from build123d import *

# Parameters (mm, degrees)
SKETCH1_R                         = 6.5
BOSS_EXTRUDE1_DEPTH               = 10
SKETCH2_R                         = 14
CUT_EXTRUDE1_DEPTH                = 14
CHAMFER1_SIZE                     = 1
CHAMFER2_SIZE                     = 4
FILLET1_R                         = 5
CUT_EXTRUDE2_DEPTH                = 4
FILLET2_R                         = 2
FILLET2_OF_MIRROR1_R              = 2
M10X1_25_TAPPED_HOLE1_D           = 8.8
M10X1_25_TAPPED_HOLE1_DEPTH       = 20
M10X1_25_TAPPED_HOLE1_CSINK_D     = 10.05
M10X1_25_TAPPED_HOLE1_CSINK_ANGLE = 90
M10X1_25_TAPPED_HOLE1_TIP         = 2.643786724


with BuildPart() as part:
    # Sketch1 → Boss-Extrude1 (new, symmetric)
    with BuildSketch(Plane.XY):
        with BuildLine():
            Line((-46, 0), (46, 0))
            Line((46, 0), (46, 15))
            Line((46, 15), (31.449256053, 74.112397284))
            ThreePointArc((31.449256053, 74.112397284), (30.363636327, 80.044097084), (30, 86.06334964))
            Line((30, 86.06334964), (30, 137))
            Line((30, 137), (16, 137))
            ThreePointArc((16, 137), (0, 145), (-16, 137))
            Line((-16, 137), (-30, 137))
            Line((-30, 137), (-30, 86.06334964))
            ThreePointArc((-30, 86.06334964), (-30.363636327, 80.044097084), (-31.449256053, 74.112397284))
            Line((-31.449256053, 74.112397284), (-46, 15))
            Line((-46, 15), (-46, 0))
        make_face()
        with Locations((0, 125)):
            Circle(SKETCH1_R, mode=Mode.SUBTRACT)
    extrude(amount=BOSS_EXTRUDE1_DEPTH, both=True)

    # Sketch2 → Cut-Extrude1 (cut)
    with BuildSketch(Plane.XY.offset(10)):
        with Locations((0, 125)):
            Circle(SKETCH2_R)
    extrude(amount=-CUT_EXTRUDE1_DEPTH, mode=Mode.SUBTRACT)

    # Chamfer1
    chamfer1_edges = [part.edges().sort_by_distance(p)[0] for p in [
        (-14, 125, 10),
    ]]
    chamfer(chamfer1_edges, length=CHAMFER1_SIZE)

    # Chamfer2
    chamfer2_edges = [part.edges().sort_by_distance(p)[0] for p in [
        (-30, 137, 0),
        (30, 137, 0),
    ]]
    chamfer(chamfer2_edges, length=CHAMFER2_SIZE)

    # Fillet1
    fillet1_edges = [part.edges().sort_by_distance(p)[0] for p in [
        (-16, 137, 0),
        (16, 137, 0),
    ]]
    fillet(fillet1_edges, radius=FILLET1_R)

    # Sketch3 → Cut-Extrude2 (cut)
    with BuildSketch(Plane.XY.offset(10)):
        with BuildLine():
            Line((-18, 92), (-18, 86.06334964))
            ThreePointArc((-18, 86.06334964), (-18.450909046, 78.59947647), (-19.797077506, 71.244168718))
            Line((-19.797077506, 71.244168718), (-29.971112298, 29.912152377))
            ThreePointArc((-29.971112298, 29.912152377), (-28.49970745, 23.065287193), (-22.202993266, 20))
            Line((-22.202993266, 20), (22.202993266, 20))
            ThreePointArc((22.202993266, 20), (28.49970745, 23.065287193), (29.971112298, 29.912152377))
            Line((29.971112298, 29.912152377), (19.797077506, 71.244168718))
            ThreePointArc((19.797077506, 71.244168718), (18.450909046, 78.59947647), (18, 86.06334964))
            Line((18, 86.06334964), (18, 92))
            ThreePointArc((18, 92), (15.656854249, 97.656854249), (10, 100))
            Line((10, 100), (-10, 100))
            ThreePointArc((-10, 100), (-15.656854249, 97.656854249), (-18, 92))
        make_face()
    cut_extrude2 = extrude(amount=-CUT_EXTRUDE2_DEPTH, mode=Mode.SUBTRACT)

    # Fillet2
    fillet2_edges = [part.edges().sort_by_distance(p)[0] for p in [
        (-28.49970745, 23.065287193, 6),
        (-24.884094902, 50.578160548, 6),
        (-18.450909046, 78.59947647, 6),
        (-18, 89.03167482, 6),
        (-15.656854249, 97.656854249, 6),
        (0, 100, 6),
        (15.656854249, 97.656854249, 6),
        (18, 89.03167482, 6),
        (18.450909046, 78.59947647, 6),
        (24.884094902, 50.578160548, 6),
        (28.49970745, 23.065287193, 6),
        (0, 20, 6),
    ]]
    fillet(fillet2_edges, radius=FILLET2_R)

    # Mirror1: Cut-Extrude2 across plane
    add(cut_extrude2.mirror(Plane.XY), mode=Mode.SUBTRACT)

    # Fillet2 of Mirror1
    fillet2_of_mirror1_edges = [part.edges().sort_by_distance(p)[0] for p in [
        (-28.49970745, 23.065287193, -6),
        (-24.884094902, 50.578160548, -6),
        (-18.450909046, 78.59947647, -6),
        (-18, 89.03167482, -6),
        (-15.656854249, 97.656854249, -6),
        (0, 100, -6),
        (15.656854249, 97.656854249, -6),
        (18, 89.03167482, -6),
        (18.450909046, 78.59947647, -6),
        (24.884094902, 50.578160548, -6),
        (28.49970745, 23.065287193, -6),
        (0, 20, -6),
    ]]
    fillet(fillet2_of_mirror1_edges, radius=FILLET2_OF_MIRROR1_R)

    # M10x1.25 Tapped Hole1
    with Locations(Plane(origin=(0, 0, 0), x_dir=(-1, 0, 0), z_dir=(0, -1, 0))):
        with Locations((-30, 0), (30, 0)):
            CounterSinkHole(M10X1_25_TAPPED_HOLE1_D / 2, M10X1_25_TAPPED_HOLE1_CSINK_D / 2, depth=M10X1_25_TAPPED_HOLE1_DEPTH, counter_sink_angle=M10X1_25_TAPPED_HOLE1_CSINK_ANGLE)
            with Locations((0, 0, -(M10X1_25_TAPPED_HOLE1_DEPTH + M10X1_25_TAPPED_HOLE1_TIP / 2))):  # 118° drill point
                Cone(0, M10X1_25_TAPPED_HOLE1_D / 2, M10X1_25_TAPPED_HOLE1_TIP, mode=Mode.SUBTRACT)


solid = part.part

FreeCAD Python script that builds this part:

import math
import FreeCAD as App
import Part
import Sketcher


def edges_at(feature, points):
    """Names of the edges that pass closest to the given points."""
    edges = feature.Shape.Edges
    near = lambda p: min(range(len(edges)), key=lambda i: edges[i].distToShape(Part.Vertex(*p))[0])
    return sorted({f"Edge{near(p) + 1}" for p in points})

doc = App.newDocument("Part")
body = doc.addObject("PartDesign::Body", "Body")

# Sketch on XY plane
sketch1 = body.newObject("Sketcher::SketchObject", "Sketch")
sketch1.AttachmentSupport = (doc.getObject("XY_Plane"), [""])
sketch1.MapMode = "FlatFace"
sketch1.addGeometry(Part.LineSegment(App.Vector(-46, 0, 0), App.Vector(46, 0, 0)), False)
sketch1.addGeometry(Part.LineSegment(App.Vector(46, 0, 0), App.Vector(46, 15, 0)), False)
sketch1.addGeometry(Part.LineSegment(App.Vector(46, 15, 0), App.Vector(31, 74, 0)), False)
sketch1.addGeometry(Part.ArcOfCircle(Part.Circle(App.Vector(80, 86, 0), App.Vector(0, 0, 1), 50), math.radians(180), math.radians(193.83)), False)
sketch1.addGeometry(Part.LineSegment(App.Vector(30, 86, 0), App.Vector(30, 137, 0)), False)
sketch1.addGeometry(Part.LineSegment(App.Vector(30, 137, 0), App.Vector(16, 137, 0)), False)
sketch1.addGeometry(Part.ArcOfCircle(Part.Circle(App.Vector(0, 125, 0), App.Vector(0, 0, 1), 20), math.radians(37), math.radians(143)), False)
sketch1.addGeometry(Part.LineSegment(App.Vector(-16, 137, 0), App.Vector(-30, 137, 0)), False)
sketch1.addGeometry(Part.LineSegment(App.Vector(-30, 137, 0), App.Vector(-30, 86, 0)), False)
sketch1.addGeometry(Part.ArcOfCircle(Part.Circle(App.Vector(-80, 86, 0), App.Vector(0, 0, 1), 50), math.radians(-13.83), math.radians(0)), False)
sketch1.addGeometry(Part.LineSegment(App.Vector(-31, 74, 0), App.Vector(-46, 15, 0)), False)
sketch1.addGeometry(Part.LineSegment(App.Vector(-46, 15, 0), App.Vector(-46, 0, 0)), False)
sketch1.addGeometry(Part.Circle(App.Vector(0, 125, 0), App.Vector(0, 0, 1), 6), False)
sketch1.addConstraint(Sketcher.Constraint("Coincident", 0, 2, 1, 1))
sketch1.addConstraint(Sketcher.Constraint("Coincident", 1, 2, 2, 1))
sketch1.addConstraint(Sketcher.Constraint("Tangent", 2, 2, 3, 2))
sketch1.addConstraint(Sketcher.Constraint("Tangent", 3, 1, 4, 1))
sketch1.addConstraint(Sketcher.Constraint("Coincident", 4, 2, 5, 1))
sketch1.addConstraint(Sketcher.Constraint("Coincident", 5, 2, 6, 1))
sketch1.addConstraint(Sketcher.Constraint("Coincident", 6, 2, 7, 1))
sketch1.addConstraint(Sketcher.Constraint("Coincident", 7, 2, 8, 1))
sketch1.addConstraint(Sketcher.Constraint("Tangent", 8, 2, 9, 2))
sketch1.addConstraint(Sketcher.Constraint("Tangent", 9, 1, 10, 1))
sketch1.addConstraint(Sketcher.Constraint("Coincident", 10, 2, 11, 1))
sketch1.addConstraint(Sketcher.Constraint("Coincident", 11, 2, 0, 1))
sketch1.addConstraint(Sketcher.Constraint("Horizontal", 0))
sketch1.addConstraint(Sketcher.Constraint("Vertical", 1))
sketch1.addConstraint(Sketcher.Constraint("Vertical", 4))
sketch1.addConstraint(Sketcher.Constraint("Horizontal", 5))
sketch1.addConstraint(Sketcher.Constraint("Horizontal", 7))
sketch1.addConstraint(Sketcher.Constraint("Vertical", 8))
sketch1.addConstraint(Sketcher.Constraint("Vertical", 11))
sketch1.addConstraint(Sketcher.Constraint("Coincident", 12, 3, 6, 3))
sketch1.addConstraint(Sketcher.Constraint("Equal", 3, 9))
sketch1.addConstraint(Sketcher.Constraint("Symmetric", 0, 2, 11, 2, -1, 1))
sketch1.addConstraint(Sketcher.Constraint("Symmetric", 3, 3, 9, 3, -2))
sketch1.addConstraint(Sketcher.Constraint("Symmetric", 5, 2, 6, 2, -2))
sketch1.addConstraint(Sketcher.Constraint("Horizontal", 2, 2, 9, 1))
sketch1.addConstraint(Sketcher.Constraint("Diameter", 12, 13.0))
sketch1.addConstraint(Sketcher.Constraint("Radius", 3, 50.0))
sketch1.addConstraint(Sketcher.Constraint("Radius", 6, 20.0))
sketch1.addConstraint(Sketcher.Constraint("DistanceX", 0, 1, 0, 2, 92.0))
sketch1.addConstraint(Sketcher.Constraint("DistanceX", 5, 2, 5, 1, 14.0))
sketch1.addConstraint(Sketcher.Constraint("DistanceY", 1, 1, 1, 2, 15.0))
sketch1.addConstraint(Sketcher.Constraint("DistanceX", -1, 1, 3, 3, 80.0))
sketch1.addConstraint(Sketcher.Constraint("DistanceY", -1, 1, 6, 3, 125.0))
sketch1.addConstraint(Sketcher.Constraint("DistanceY", 4, 1, 4, 2, 50.93665))
pad1 = body.newObject("PartDesign::Pad", "Pad")
pad1.Profile = sketch1
pad1.Length = 20
pad1.Midplane = True

# Sketch on XY plane
sketch2 = body.newObject("Sketcher::SketchObject", "Sketch001")
sketch2.AttachmentSupport = (doc.getObject("XY_Plane"), [""])
sketch2.MapMode = "FlatFace"
sketch2.AttachmentOffset = App.Placement(App.Vector(0, 0, 10), App.Rotation())
sketch2.addGeometry(Part.Circle(App.Vector(0, 125, 0), App.Vector(0, 0, 1), 14), False)
sketch2.addConstraint(Sketcher.Constraint("PointOnObject", 0, 3, -2))
sketch2.addConstraint(Sketcher.Constraint("Diameter", 0, 28.0))
sketch2.addConstraint(Sketcher.Constraint("DistanceY", -1, 1, 0, 3, 125.0))
pocket1 = body.newObject("PartDesign::Pocket", "Pocket")
pocket1.Profile = sketch2
pocket1.Length = 14
doc.recompute()

chamfer = body.newObject("PartDesign::Chamfer", "Chamfer")
chamfer.Base = (pocket1, edges_at(pocket1, [(-14, 125, 10)]))
chamfer.Size = 1
doc.recompute()

chamfer2 = body.newObject("PartDesign::Chamfer", "Chamfer001")
chamfer2.Base = (chamfer, edges_at(chamfer, [(-30, 137, 0), (30, 137, 0)]))
chamfer2.Size = 4
doc.recompute()

fillet = body.newObject("PartDesign::Fillet", "Fillet")
fillet.Base = (chamfer2, edges_at(chamfer2, [(-16, 137, 0), (16, 137, 0)]))
fillet.Radius = 5

# Sketch on XY plane
sketch3 = body.newObject("Sketcher::SketchObject", "Sketch002")
sketch3.AttachmentSupport = (doc.getObject("XY_Plane"), [""])
sketch3.MapMode = "FlatFace"
sketch3.AttachmentOffset = App.Placement(App.Vector(0, 0, 10), App.Rotation())
sketch3.addGeometry(Part.LineSegment(App.Vector(-18, 92, 0), App.Vector(-18, 86, 0)), False)
sketch3.addGeometry(Part.ArcOfCircle(Part.Circle(App.Vector(-80, 86, 0), App.Vector(0, 0, 1), 62), math.radians(-13.83), math.radians(0)), False)
sketch3.addGeometry(Part.LineSegment(App.Vector(-20, 71, 0), App.Vector(-30, 30, 0)), False)
sketch3.addGeometry(Part.ArcOfCircle(Part.Circle(App.Vector(-22, 28, 0), App.Vector(0, 0, 1), 8), math.radians(166), math.radians(270)), False)
sketch3.addGeometry(Part.LineSegment(App.Vector(-22, 20, 0), App.Vector(22, 20, 0)), False)
sketch3.addGeometry(Part.ArcOfCircle(Part.Circle(App.Vector(22, 28, 0), App.Vector(0, 0, 1), 8), math.radians(-90), math.radians(14)), False)
sketch3.addGeometry(Part.LineSegment(App.Vector(30, 30, 0), App.Vector(20, 71, 0)), False)
sketch3.addGeometry(Part.ArcOfCircle(Part.Circle(App.Vector(80, 86, 0), App.Vector(0, 0, 1), 62), math.radians(-180), math.radians(-166.17)), False)
sketch3.addGeometry(Part.LineSegment(App.Vector(18, 86, 0), App.Vector(18, 92, 0)), False)
sketch3.addGeometry(Part.ArcOfCircle(Part.Circle(App.Vector(10, 92, 0), App.Vector(0, 0, 1), 8), math.radians(0), math.radians(90)), False)
sketch3.addGeometry(Part.LineSegment(App.Vector(10, 100, 0), App.Vector(-10, 100, 0)), False)
sketch3.addGeometry(Part.ArcOfCircle(Part.Circle(App.Vector(-10, 92, 0), App.Vector(0, 0, 1), 8), math.radians(90), math.radians(180)), False)
sketch3.addConstraint(Sketcher.Constraint("Tangent", 0, 2, 1, 2))
sketch3.addConstraint(Sketcher.Constraint("Tangent", 1, 1, 2, 1))
sketch3.addConstraint(Sketcher.Constraint("Tangent", 2, 2, 3, 1))
sketch3.addConstraint(Sketcher.Constraint("Tangent", 3, 2, 4, 1))
sketch3.addConstraint(Sketcher.Constraint("Tangent", 4, 2, 5, 1))
sketch3.addConstraint(Sketcher.Constraint("Tangent", 5, 2, 6, 1))
sketch3.addConstraint(Sketcher.Constraint("Tangent", 6, 2, 7, 2))
sketch3.addConstraint(Sketcher.Constraint("Tangent", 7, 1, 8, 1))
sketch3.addConstraint(Sketcher.Constraint("Tangent", 8, 2, 9, 1))
sketch3.addConstraint(Sketcher.Constraint("Tangent", 9, 2, 10, 1))
sketch3.addConstraint(Sketcher.Constraint("Tangent", 10, 2, 11, 1))
sketch3.addConstraint(Sketcher.Constraint("Tangent", 11, 2, 0, 1))
sketch3.addConstraint(Sketcher.Constraint("Vertical", 0))
sketch3.addConstraint(Sketcher.Constraint("Horizontal", 4))
sketch3.addConstraint(Sketcher.Constraint("Vertical", 8))
sketch3.addConstraint(Sketcher.Constraint("Horizontal", 10))
sketch3.addConstraint(Sketcher.Constraint("Equal", 3, 5))
sketch3.addConstraint(Sketcher.Constraint("Equal", 1, 7))
sketch3.addConstraint(Sketcher.Constraint("Equal", 5, 9))
sketch3.addConstraint(Sketcher.Constraint("Equal", 9, 11))
sketch3.addConstraint(Sketcher.Constraint("Symmetric", 1, 3, 7, 3, -2))
sketch3.addConstraint(Sketcher.Constraint("Horizontal", 2, 2, 5, 2))
sketch3.addConstraint(Sketcher.Constraint("Radius", 1, 62.0))
sketch3.addConstraint(Sketcher.Constraint("Radius", 3, 8.0))
sketch3.addConstraint(Sketcher.Constraint("DistanceX", 10, 2, 10, 1, 20.0))
sketch3.addConstraint(Sketcher.Constraint("DistanceY", -1, 1, 3, 3, 28.0))
sketch3.addConstraint(Sketcher.Constraint("DistanceY", -1, 1, 9, 3, 92.0))
sketch3.addConstraint(Sketcher.Constraint("DistanceY", 0, 2, 0, 1, 5.93665))
sketch3.addConstraint(Sketcher.Constraint("Distance", 2, 42.565791))
pocket2 = body.newObject("PartDesign::Pocket", "Pocket001")
pocket2.Profile = sketch3
pocket2.Length = 4
doc.recompute()

fillet2 = body.newObject("PartDesign::Fillet", "Fillet001")
fillet2.Base = (pocket2, edges_at(pocket2, [
    (-28.5, 23.065, 6),
    (-24.884, 50.578, 6),
    (-18.451, 78.599, 6),
    (-18, 89.032, 6),
    (-15.657, 97.657, 6),
    (0, 100, 6),
    (15.657, 97.657, 6),
    (18, 89.032, 6),
    (18.451, 78.599, 6),
    (24.884, 50.578, 6),
    (28.5, 23.065, 6),
    (0, 20, 6),
]))
fillet2.Radius = 2
doc.recompute()

mirrored = body.newObject("PartDesign::Mirrored", "Mirrored")
mirrored.Originals = [pocket2]
mirrored.MirrorPlane = (doc.getObject("XY_Plane"), [""])
body.Tip = mirrored
doc.recompute()

fillet3 = body.newObject("PartDesign::Fillet", "Fillet002")
fillet3.Base = (mirrored, edges_at(mirrored, [
    (-28.5, 23.065, -6),
    (-24.884, 50.578, -6),
    (-18.451, 78.599, -6),
    (-18, 89.032, -6),
    (-15.657, 97.657, -6),
    (0, 100, -6),
    (15.657, 97.657, -6),
    (18, 89.032, -6),
    (18.451, 78.599, -6),
    (24.884, 50.578, -6),
    (28.5, 23.065, -6),
    (0, 20, -6),
]))
fillet3.Radius = 2

# Sketch on XZ plane
sketch4 = body.newObject("Sketcher::SketchObject", "Sketch003")
sketch4.AttachmentSupport = (doc.getObject("XZ_Plane"), [""])
sketch4.MapMode = "FlatFace"
sketch4.addGeometry(Part.Circle(App.Vector(30, 0, 0), App.Vector(0, 0, 1), 4.4), False)
sketch4.addGeometry(Part.Circle(App.Vector(-30, 0, 0), App.Vector(0, 0, 1), 4.4), False)
sketch4.addConstraint(Sketcher.Constraint("Equal", 0, 1))
sketch4.addConstraint(Sketcher.Constraint("Symmetric", 0, 3, 1, 3, -1, 1))
sketch4.addConstraint(Sketcher.Constraint("PointOnObject", 0, 3, -1))
sketch4.addConstraint(Sketcher.Constraint("Diameter", 0, 8.8))
sketch4.addConstraint(Sketcher.Constraint("DistanceX", -1, 1, 0, 3, 30.0))
doc.recompute()
hole = body.newObject("PartDesign::Hole", "Hole")
hole.Profile = sketch4
hole.ThreadType = "None"
hole.Diameter = 8.8
hole.DepthType = "Dimension"
hole.Depth = 20
hole.DrillPoint = "Angled"
hole.DrillPointAngle = 118
hole.HoleCutType = "Countersink"
hole.HoleCutDiameter = 10.05
hole.HoleCutCountersinkAngle = 90

doc.recompute()
